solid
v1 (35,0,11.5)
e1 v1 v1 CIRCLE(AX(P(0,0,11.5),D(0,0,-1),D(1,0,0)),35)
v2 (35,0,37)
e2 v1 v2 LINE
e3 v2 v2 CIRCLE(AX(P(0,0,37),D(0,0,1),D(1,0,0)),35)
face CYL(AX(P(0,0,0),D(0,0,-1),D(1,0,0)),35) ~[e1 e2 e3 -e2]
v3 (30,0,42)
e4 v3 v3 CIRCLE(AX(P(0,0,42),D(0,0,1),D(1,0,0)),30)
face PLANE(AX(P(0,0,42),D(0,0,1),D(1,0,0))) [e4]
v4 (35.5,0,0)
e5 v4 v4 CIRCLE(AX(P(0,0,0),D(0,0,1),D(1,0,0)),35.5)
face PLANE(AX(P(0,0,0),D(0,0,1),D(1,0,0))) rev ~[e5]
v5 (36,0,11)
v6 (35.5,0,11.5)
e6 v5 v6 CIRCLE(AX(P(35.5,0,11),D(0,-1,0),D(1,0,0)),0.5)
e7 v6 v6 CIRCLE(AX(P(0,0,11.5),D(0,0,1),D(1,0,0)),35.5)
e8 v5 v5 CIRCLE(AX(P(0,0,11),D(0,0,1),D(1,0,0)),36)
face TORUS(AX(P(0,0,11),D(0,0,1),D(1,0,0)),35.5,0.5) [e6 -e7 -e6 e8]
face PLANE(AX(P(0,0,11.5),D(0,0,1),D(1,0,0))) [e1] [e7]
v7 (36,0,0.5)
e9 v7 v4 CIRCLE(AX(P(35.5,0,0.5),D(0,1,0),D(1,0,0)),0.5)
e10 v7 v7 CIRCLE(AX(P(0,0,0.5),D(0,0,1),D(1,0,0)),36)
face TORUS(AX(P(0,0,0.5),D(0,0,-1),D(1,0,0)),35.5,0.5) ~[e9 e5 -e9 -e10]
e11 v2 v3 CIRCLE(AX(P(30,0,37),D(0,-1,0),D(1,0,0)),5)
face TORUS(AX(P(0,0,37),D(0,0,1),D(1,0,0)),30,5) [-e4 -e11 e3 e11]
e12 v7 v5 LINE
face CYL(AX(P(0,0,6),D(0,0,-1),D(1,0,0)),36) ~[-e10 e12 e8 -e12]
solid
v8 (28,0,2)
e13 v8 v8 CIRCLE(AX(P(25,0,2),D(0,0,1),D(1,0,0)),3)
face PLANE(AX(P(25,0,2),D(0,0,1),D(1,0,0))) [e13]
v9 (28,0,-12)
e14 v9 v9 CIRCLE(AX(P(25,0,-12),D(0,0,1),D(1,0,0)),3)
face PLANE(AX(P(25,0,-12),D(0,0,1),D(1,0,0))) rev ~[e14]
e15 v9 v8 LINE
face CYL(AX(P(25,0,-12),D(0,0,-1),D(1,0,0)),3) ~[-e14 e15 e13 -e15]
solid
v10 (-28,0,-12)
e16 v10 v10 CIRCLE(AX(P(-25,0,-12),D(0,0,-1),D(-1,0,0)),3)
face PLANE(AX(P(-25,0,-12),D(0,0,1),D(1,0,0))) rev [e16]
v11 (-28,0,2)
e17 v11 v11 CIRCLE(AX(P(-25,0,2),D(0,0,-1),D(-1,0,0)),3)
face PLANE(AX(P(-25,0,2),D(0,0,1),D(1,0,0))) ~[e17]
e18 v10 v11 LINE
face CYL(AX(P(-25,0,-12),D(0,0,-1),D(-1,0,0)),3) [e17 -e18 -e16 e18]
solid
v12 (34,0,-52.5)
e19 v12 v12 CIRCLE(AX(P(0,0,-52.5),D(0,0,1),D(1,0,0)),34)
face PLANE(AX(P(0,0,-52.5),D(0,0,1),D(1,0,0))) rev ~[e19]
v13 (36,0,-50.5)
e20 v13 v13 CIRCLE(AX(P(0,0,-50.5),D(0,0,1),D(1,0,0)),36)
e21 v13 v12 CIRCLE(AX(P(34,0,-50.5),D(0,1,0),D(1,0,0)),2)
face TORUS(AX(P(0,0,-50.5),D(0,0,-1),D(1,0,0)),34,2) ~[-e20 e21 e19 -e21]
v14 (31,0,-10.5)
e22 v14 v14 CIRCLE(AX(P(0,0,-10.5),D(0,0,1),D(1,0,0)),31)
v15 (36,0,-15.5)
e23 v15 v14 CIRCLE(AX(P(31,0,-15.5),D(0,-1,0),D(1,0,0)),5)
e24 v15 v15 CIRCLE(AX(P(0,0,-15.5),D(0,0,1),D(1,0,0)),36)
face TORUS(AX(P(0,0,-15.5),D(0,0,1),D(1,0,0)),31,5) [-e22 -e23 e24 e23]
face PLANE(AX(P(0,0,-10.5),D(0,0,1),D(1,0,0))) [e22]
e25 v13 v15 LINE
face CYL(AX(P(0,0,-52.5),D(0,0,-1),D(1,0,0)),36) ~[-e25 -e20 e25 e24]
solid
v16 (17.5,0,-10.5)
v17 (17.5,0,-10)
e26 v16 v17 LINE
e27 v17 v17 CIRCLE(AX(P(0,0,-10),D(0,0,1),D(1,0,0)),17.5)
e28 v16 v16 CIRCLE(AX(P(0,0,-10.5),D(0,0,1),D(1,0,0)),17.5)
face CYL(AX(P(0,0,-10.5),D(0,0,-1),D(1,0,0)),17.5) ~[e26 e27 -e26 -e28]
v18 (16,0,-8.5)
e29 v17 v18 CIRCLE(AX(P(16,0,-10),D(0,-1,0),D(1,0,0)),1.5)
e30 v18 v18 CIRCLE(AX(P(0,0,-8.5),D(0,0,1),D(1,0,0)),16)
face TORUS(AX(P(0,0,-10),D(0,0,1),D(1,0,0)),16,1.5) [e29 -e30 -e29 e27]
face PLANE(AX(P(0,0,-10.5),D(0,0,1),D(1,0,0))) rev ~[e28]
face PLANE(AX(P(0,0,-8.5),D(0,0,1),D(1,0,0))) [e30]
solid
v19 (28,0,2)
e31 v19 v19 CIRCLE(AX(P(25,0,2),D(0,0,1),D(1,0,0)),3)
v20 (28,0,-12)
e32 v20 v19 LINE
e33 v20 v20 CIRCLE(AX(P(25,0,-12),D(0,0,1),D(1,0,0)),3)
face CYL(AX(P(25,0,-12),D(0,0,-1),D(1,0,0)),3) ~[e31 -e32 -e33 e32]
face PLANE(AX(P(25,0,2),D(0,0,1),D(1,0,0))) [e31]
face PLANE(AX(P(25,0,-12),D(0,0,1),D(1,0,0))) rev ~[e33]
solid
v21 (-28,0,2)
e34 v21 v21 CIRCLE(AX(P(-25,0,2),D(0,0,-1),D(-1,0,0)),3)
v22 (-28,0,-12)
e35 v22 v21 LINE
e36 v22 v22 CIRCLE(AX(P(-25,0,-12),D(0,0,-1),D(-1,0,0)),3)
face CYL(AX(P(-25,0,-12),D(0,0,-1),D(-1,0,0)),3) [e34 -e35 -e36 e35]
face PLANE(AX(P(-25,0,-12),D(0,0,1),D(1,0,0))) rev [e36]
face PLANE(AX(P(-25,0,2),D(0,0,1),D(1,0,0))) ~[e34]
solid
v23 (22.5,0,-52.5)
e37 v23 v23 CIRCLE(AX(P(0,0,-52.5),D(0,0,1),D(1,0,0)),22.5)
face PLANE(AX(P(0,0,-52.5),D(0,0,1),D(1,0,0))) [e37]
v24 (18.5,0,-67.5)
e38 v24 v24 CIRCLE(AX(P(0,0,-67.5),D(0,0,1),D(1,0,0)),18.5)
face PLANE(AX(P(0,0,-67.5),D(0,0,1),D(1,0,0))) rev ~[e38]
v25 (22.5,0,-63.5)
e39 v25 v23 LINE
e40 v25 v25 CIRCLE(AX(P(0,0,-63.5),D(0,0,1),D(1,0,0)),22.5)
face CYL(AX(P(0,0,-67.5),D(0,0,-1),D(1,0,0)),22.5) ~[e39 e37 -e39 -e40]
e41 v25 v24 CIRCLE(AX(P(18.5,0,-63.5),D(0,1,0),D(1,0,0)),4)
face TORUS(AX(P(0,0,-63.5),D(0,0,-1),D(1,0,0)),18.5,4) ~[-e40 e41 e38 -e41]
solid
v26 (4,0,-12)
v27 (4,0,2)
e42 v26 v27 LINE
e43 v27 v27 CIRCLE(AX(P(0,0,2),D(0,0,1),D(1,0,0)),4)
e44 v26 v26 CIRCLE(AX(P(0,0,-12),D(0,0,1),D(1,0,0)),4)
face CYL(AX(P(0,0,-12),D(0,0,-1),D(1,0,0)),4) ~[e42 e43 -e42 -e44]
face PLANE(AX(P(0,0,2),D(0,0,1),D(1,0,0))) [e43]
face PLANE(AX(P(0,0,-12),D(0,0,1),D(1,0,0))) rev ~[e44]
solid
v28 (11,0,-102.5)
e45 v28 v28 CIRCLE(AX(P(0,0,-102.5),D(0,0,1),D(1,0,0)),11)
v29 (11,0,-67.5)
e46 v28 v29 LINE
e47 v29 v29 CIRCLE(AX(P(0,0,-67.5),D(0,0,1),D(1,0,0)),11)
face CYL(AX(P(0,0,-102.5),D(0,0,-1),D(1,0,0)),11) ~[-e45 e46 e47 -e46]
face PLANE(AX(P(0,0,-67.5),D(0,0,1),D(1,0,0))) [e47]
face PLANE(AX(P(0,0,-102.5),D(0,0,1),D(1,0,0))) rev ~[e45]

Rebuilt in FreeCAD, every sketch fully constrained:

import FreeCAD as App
import Part
import Sketcher
Q = App.Units.Quantity


def edges_at(feature, points):
    """Names of the edges that pass closest to the given points."""
    edges = feature.Shape.Edges
    near = lambda p: min(range(len(edges)), key=lambda i: edges[i].distToShape(Part.Vertex(*p))[0])
    return sorted({f"Edge{near(p) + 1}" for p in points})

doc = App.newDocument("Part")
body = doc.addObject("PartDesign::Body", "Body")

# Sketch on XY plane
sketch1 = body.newObject("Sketcher::SketchObject", "Sketch")
sketch1.AttachmentSupport = (doc.getObject("XY_Plane"), [""])
sketch1.MapMode = "FlatFace"
sketch1.AttachmentOffset = App.Placement(App.Vector(0, 0, -102.5), App.Rotation())
sketch1.addGeometry(Part.Circle(App.Vector(0, 0, 0), App.Vector(0, 0, 1), 11), False)
sketch1.addConstraint([
    Sketcher.Constraint("Coincident", 0, 3, -1, 1),
    Sketcher.Constraint("Diameter", 0, Q("22 mm")),
])
pad1 = body.newObject("PartDesign::Pad", "Pad")
pad1.Profile = sketch1
pad1.Length = 35
body2 = doc.addObject("PartDesign::Body", "Body001")

# Sketch on XY plane
sketch2 = body2.newObject("Sketcher::SketchObject", "Sketch001")
sketch2.AttachmentSupport = (doc.getObject("XY_Plane001"), [""])
sketch2.MapMode = "FlatFace"
sketch2.AttachmentOffset = App.Placement(App.Vector(0, 0, -12), App.Rotation())
sketch2.addGeometry(Part.Circle(App.Vector(25, 0, 0), App.Vector(0, 0, 1), 3), False)
sketch2.addConstraint([
    Sketcher.Constraint("PointOnObject", 0, 3, -1),
    Sketcher.Constraint("Diameter", 0, Q("6 mm")),
    Sketcher.Constraint("DistanceX", -1, 1, 0, 3, Q("25 mm")),
])
pad2 = body2.newObject("PartDesign::Pad", "Pad001")
pad2.Profile = sketch2
pad2.Length = 14
body3 = doc.addObject("PartDesign::Body", "Body002")
doc.recompute()

mirroring = doc.addObject("Part::Mirroring", "Mirroring")
mirroring.Source = body2
mirroring.Base = App.Vector(0, 0, 0)
mirroring.Normal = App.Vector(1, 0, 0)
body3.BaseFeature = mirroring
doc.recompute()
body4 = doc.addObject("PartDesign::Body", "Body003")
body4.AllowCompound = True

# Sketch on XY plane
sketch3 = body4.newObject("Sketcher::SketchObject", "Sketch002")
sketch3.AttachmentSupport = (doc.getObject("XY_Plane003"), [""])
sketch3.MapMode = "FlatFace"
sketch3.AttachmentOffset = App.Placement(App.Vector(0, 0, -12), App.Rotation())
sketch3.addGeometry(Part.Circle(App.Vector(25, 0, 0), App.Vector(0, 0, 1), 3), False)
sketch3.addConstraint([
    Sketcher.Constraint("PointOnObject", 0, 3, -1),
    Sketcher.Constraint("Diameter", 0, Q("6 mm")),
    Sketcher.Constraint("DistanceX", -1, 1, 0, 3, Q("25 mm")),
])
pad3 = body4.newObject("PartDesign::Pad", "Pad002")
pad3.Profile = sketch3
pad3.Length = 14
doc.recompute()

boolean = body4.newObject("PartDesign::Boolean", "Boolean")
boolean.Type = "Fuse"
boolean.addObjects([body3])
body5 = doc.addObject("PartDesign::Body", "Body004")
body5.AllowCompound = True
doc.recompute()

body4.Placement = App.Placement(App.Vector(0, 0, 0), App.Rotation(App.Vector(0, 0, 1), 90))
boolean2 = body5.newObject("PartDesign::Boolean", "Boolean001")
boolean2.Type = "Fuse"
boolean2.addObjects([body4])
body6 = doc.addObject("PartDesign::Body", "Body005")

# Sketch on XY plane
sketch4 = body6.newObject("Sketcher::SketchObject", "Sketch003")
sketch4.AttachmentSupport = (doc.getObject("XY_Plane005"), [""])
sketch4.MapMode = "FlatFace"
sketch4.AttachmentOffset = App.Placement(App.Vector(0, 0, -12), App.Rotation())
sketch4.addGeometry(Part.Circle(App.Vector(25, 0, 0), App.Vector(0, 0, 1), 3), False)
sketch4.addConstraint([
    Sketcher.Constraint("PointOnObject", 0, 3, -1),
    Sketcher.Constraint("Diameter", 0, Q("6 mm")),
    Sketcher.Constraint("DistanceX", -1, 1, 0, 3, Q("25 mm")),
])
pad4 = body6.newObject("PartDesign::Pad", "Pad003")
pad4.Profile = sketch4
pad4.Length = 14
body7 = doc.addObject("PartDesign::Body", "Body006")
doc.recompute()

mirroring2 = doc.addObject("Part::Mirroring", "Mirroring001")
mirroring2.Source = body6
mirroring2.Base = App.Vector(0, 0, 0)
mirroring2.Normal = App.Vector(1, 0, 0)
body7.BaseFeature = mirroring2
doc.recompute()
body8 = doc.addObject("PartDesign::Body", "Body007")
body8.AllowCompound = True

# Sketch on XY plane
sketch5 = body8.newObject("Sketcher::SketchObject", "Sketch004")
sketch5.AttachmentSupport = (doc.getObject("XY_Plane007"), [""])
sketch5.MapMode = "FlatFace"
sketch5.AttachmentOffset = App.Placement(App.Vector(0, 0, -12), App.Rotation())
sketch5.addGeometry(Part.Circle(App.Vector(25, 0, 0), App.Vector(0, 0, 1), 3), False)
sketch5.addConstraint([
    Sketcher.Constraint("PointOnObject", 0, 3, -1),
    Sketcher.Constraint("Diameter", 0, Q("6 mm")),
    Sketcher.Constraint("DistanceX", -1, 1, 0, 3, Q("25 mm")),
])
pad5 = body8.newObject("PartDesign::Pad", "Pad004")
pad5.Profile = sketch5
pad5.Length = 14
doc.recompute()

boolean3 = body8.newObject("PartDesign::Boolean", "Boolean002")
boolean3.Type = "Fuse"
boolean3.addObjects([body7])
doc.recompute()

boolean4 = body8.newObject("PartDesign::Boolean", "Boolean003")
boolean4.Type = "Fuse"
boolean4.addObjects([body5])
body9 = doc.addObject("PartDesign::Body", "Body008")

# Sketch on XY plane
sketch6 = body9.newObject("Sketcher::SketchObject", "Sketch005")
sketch6.AttachmentSupport = (doc.getObject("XY_Plane008"), [""])
sketch6.MapMode = "FlatFace"
sketch6.AttachmentOffset = App.Placement(App.Vector(0, 0, -12), App.Rotation())
sketch6.addGeometry(Part.Circle(App.Vector(0, 0, 0), App.Vector(0, 0, 1), 4), False)
sketch6.addConstraint([
    Sketcher.Constraint("Coincident", 0, 3, -1, 1),
    Sketcher.Constraint("Diameter", 0, Q("8 mm")),
])
pad6 = body9.newObject("PartDesign::Pad", "Pad005")
pad6.Profile = sketch6
pad6.Length = 14
body10 = doc.addObject("PartDesign::Body", "Body009")

# Sketch on XY plane
sketch7 = body10.newObject("Sketcher::SketchObject", "Sketch006")
sketch7.AttachmentSupport = (doc.getObject("XY_Plane009"), [""])
sketch7.MapMode = "FlatFace"
sketch7.AttachmentOffset = App.Placement(App.Vector(0, 0, 6), App.Rotation())
sketch7.addGeometry(Part.Circle(App.Vector(0, 0, 0), App.Vector(0, 0, 1), 36), False)
sketch7.addConstraint([
    Sketcher.Constraint("Coincident", 0, 3, -1, 1),
    Sketcher.Constraint("Diameter", 0, Q("72 mm")),
])
pad7 = body10.newObject("PartDesign::Pad", "Pad006")
pad7.Profile = sketch7
pad7.Length = 5.5
body11 = doc.addObject("PartDesign::Body", "Body010")

# Sketch on XY plane
sketch8 = body11.newObject("Sketcher::SketchObject", "Sketch007")
sketch8.AttachmentSupport = (doc.getObject("XY_Plane010"), [""])
sketch8.MapMode = "FlatFace"
sketch8.addGeometry(Part.Circle(App.Vector(0, 0, 0), App.Vector(0, 0, 1), 36), False)
sketch8.addConstraint([
    Sketcher.Constraint("Coincident", 0, 3, -1, 1),
    Sketcher.Constraint("Diameter", 0, Q("72 mm")),
])
pad8 = body11.newObject("PartDesign::Pad", "Pad007")
pad8.Profile = sketch8
pad8.Length = 6
doc.recompute()

boolean5 = body11.newObject("PartDesign::Boolean", "Boolean004")
boolean5.Type = "Fuse"
boolean5.addObjects([body10])
body12 = doc.addObject("PartDesign::Body", "Body011")

# Sketch on XY plane
sketch9 = body12.newObject("Sketcher::SketchObject", "Sketch008")
sketch9.AttachmentSupport = (doc.getObject("XY_Plane011"), [""])
sketch9.MapMode = "FlatFace"
sketch9.AttachmentOffset = App.Placement(App.Vector(0, 0, -12), App.Rotation())
sketch9.addGeometry(Part.Circle(App.Vector(20, 0, 0), App.Vector(0, 0, 1), 8), False)
sketch9.addConstraint([
    Sketcher.Constraint("PointOnObject", 0, 3, -1),
    Sketcher.Constraint("Diameter", 0, Q("17 mm")),
    Sketcher.Constraint("DistanceX", -1, 1, 0, 3, Q("20 mm")),
])
pad9 = body12.newObject("PartDesign::Pad", "Pad008")
pad9.Profile = sketch9
pad9.Length = 2
body13 = doc.addObject("PartDesign::Body", "Body012")
doc.recompute()

mirroring3 = doc.addObject("Part::Mirroring", "Mirroring002")
mirroring3.Source = body12
mirroring3.Base = App.Vector(0, 0, 0)
mirroring3.Normal = App.Vector(1, 0, 0)
body13.BaseFeature = mirroring3
doc.recompute()
body14 = doc.addObject("PartDesign::Body", "Body013")
body14.AllowCompound = True

# Sketch on XY plane
sketch10 = body14.newObject("Sketcher::SketchObject", "Sketch009")
sketch10.AttachmentSupport = (doc.getObject("XY_Plane013"), [""])
sketch10.MapMode = "FlatFace"
sketch10.AttachmentOffset = App.Placement(App.Vector(0, 0, -12), App.Rotation())
sketch10.addGeometry(Part.Circle(App.Vector(20, 0, 0), App.Vector(0, 0, 1), 8), False)
sketch10.addConstraint([
    Sketcher.Constraint("PointOnObject", 0, 3, -1),
    Sketcher.Constraint("Diameter", 0, Q("17 mm")),
    Sketcher.Constraint("DistanceX", -1, 1, 0, 3, Q("20 mm")),
])
pad10 = body14.newObject("PartDesign::Pad", "Pad009")
pad10.Profile = sketch10
pad10.Length = 2
doc.recompute()

boolean6 = body14.newObject("PartDesign::Boolean", "Boolean005")
boolean6.Type = "Fuse"
boolean6.addObjects([body13])
body15 = doc.addObject("PartDesign::Body", "Body014")
body15.AllowCompound = True
doc.recompute()

body14.Placement = App.Placement(App.Vector(0, 0, 0), App.Rotation(App.Vector(0, 0, 1), 90))
boolean7 = body15.newObject("PartDesign::Boolean", "Boolean006")
boolean7.Type = "Fuse"
boolean7.addObjects([body14])
body16 = doc.addObject("PartDesign::Body", "Body015")

# Sketch on XY plane
sketch11 = body16.newObject("Sketcher::SketchObject", "Sketch010")
sketch11.AttachmentSupport = (doc.getObject("XY_Plane015"), [""])
sketch11.MapMode = "FlatFace"
sketch11.AttachmentOffset = App.Placement(App.Vector(0, 0, -12), App.Rotation())
sketch11.addGeometry(Part.Circle(App.Vector(20, 0, 0), App.Vector(0, 0, 1), 8), False)
sketch11.addConstraint([
    Sketcher.Constraint("PointOnObject", 0, 3, -1),
    Sketcher.Constraint("Diameter", 0, Q("17 mm")),
    Sketcher.Constraint("DistanceX", -1, 1, 0, 3, Q("20 mm")),
])
pad11 = body16.newObject("PartDesign::Pad", "Pad010")
pad11.Profile = sketch11
pad11.Length = 2
body17 = doc.addObject("PartDesign::Body", "Body016")
doc.recompute()

mirroring4 = doc.addObject("Part::Mirroring", "Mirroring003")
mirroring4.Source = body16
mirroring4.Base = App.Vector(0, 0, 0)
mirroring4.Normal = App.Vector(1, 0, 0)
body17.BaseFeature = mirroring4
doc.recompute()
body18 = doc.addObject("PartDesign::Body", "Body017")
body18.AllowCompound = True

# Sketch on XY plane
sketch12 = body18.newObject("Sketcher::SketchObject", "Sketch011")
sketch12.AttachmentSupport = (doc.getObject("XY_Plane017"), [""])
sketch12.MapMode = "FlatFace"
sketch12.AttachmentOffset = App.Placement(App.Vector(0, 0, -12), App.Rotation())
sketch12.addGeometry(Part.Circle(App.Vector(20, 0, 0), App.Vector(0, 0, 1), 8), False)
sketch12.addConstraint([
    Sketcher.Constraint("PointOnObject", 0, 3, -1),
    Sketcher.Constraint("Diameter", 0, Q("17 mm")),
    Sketcher.Constraint("DistanceX", -1, 1, 0, 3, Q("20 mm")),
])
pad12 = body18.newObject("PartDesign::Pad", "Pad011")
pad12.Profile = sketch12
pad12.Length = 2
doc.recompute()

boolean8 = body18.newObject("PartDesign::Boolean", "Boolean007")
boolean8.Type = "Fuse"
boolean8.addObjects([body17])
doc.recompute()

boolean9 = body18.newObject("PartDesign::Boolean", "Boolean008")
boolean9.Type = "Fuse"
boolean9.addObjects([body15])
body19 = doc.addObject("PartDesign::Body", "Body018")
body19.AllowCompound = True
doc.recompute()

body18.Placement = App.Placement(App.Vector(0, 0, 12), App.Rotation(App.Vector(0, 0, 1), 45))
boolean10 = body19.newObject("PartDesign::Boolean", "Boolean009")
boolean10.Type = "Fuse"
boolean10.addObjects([body18])
body20 = doc.addObject("PartDesign::Body", "Body019")

# Sketch on XY plane
sketch13 = body20.newObject("Sketcher::SketchObject", "Sketch012")
sketch13.AttachmentSupport = (doc.getObject("XY_Plane019"), [""])
sketch13.MapMode = "FlatFace"
sketch13.addGeometry(Part.Circle(App.Vector(0, 0, 0), App.Vector(0, 0, 1), 35), False)
sketch13.addConstraint([
    Sketcher.Constraint("Coincident", 0, 3, -1, 1),
    Sketcher.Constraint("Diameter", 0, Q("70 mm")),
])
pad13 = body20.newObject("PartDesign::Pad", "Pad012")
pad13.Profile = sketch13
pad13.Length = 42
doc.recompute()

boolean11 = body20.newObject("PartDesign::Boolean", "Boolean010")
boolean11.Type = "Cut"
boolean11.addObjects([body19])
doc.recompute()

fillet = body20.newObject("PartDesign::Fillet", "Fillet")
fillet.Base = (boolean11, edges_at(boolean11, [(-35, 0, 42)]))
fillet.Radius = 5
doc.recompute()

boolean12 = body20.newObject("PartDesign::Boolean", "Boolean011")
boolean12.Type = "Fuse"
boolean12.addObjects([body11])
doc.recompute()

fillet2 = body20.newObject("PartDesign::Fillet", "Fillet001")
fillet2.Base = (boolean12, edges_at(boolean12, [(-36, 0, 0), (-36, 0, 11.5)]))
fillet2.Radius = 0.5
body21 = doc.addObject("PartDesign::Body", "Body020")

# Sketch on XY plane
sketch14 = body21.newObject("Sketcher::SketchObject", "Sketch013")
sketch14.AttachmentSupport = (doc.getObject("XY_Plane020"), [""])
sketch14.MapMode = "FlatFace"
sketch14.AttachmentOffset = App.Placement(App.Vector(0, 0, -52.5), App.Rotation())
sketch14.addGeometry(Part.Circle(App.Vector(0, 0, 0), App.Vector(0, 0, 1), 36), False)
sketch14.addConstraint([
    Sketcher.Constraint("Coincident", 0, 3, -1, 1),
    Sketcher.Constraint("Diameter", 0, Q("72 mm")),
])
pad14 = body21.newObject("PartDesign::Pad", "Pad013")
pad14.Profile = sketch14
pad14.Length = 42
doc.recompute()

fillet3 = body21.newObject("PartDesign::Fillet", "Fillet002")
fillet3.Base = (pad14, edges_at(pad14, [(-36, 0, -10.5)]))
fillet3.Radius = 5
doc.recompute()

fillet4 = body21.newObject("PartDesign::Fillet", "Fillet003")
fillet4.Base = (fillet3, edges_at(fillet3, [(-36, 0, -52.5)]))
fillet4.Radius = 2
body22 = doc.addObject("PartDesign::Body", "Body021")

# Sketch on XY plane
sketch15 = body22.newObject("Sketcher::SketchObject", "Sketch014")
sketch15.AttachmentSupport = (doc.getObject("XY_Plane021"), [""])
sketch15.MapMode = "FlatFace"
sketch15.AttachmentOffset = App.Placement(App.Vector(0, 0, -10.5), App.Rotation())
sketch15.addGeometry(Part.Circle(App.Vector(0, 0, 0), App.Vector(0, 0, 1), 18), False)
sketch15.addConstraint([
    Sketcher.Constraint("Coincident", 0, 3, -1, 1),
    Sketcher.Constraint("Diameter", 0, Q("35 mm")),
])
pad15 = body22.newObject("PartDesign::Pad", "Pad014")
pad15.Profile = sketch15
pad15.Length = 2
doc.recompute()

fillet5 = body22.newObject("PartDesign::Fillet", "Fillet004")
fillet5.Base = (pad15, edges_at(pad15, [(-17.5, 0, -8.5)]))
fillet5.Radius = 1.5
body23 = doc.addObject("PartDesign::Body", "Body022")

# Sketch on XY plane
sketch16 = body23.newObject("Sketcher::SketchObject", "Sketch015")
sketch16.AttachmentSupport = (doc.getObject("XY_Plane022"), [""])
sketch16.MapMode = "FlatFace"
sketch16.AttachmentOffset = App.Placement(App.Vector(0, 0, -67.5), App.Rotation())
sketch16.addGeometry(Part.Circle(App.Vector(0, 0, 0), App.Vector(0, 0, 1), 22), False)
sketch16.addConstraint([
    Sketcher.Constraint("Coincident", 0, 3, -1, 1),
    Sketcher.Constraint("Diameter", 0, Q("45 mm")),
])
pad16 = body23.newObject("PartDesign::Pad", "Pad015")
pad16.Profile = sketch16
pad16.Length = 15
doc.recompute()

fillet6 = body23.newObject("PartDesign::Fillet", "Fillet005")
fillet6.Base = (pad16, edges_at(pad16, [(-22.5, 0, -67.5)]))
fillet6.Radius = 4
mirroring.Visibility = False
mirroring2.Visibility = False
mirroring3.Visibility = False
mirroring4.Visibility = False

doc.recompute()
